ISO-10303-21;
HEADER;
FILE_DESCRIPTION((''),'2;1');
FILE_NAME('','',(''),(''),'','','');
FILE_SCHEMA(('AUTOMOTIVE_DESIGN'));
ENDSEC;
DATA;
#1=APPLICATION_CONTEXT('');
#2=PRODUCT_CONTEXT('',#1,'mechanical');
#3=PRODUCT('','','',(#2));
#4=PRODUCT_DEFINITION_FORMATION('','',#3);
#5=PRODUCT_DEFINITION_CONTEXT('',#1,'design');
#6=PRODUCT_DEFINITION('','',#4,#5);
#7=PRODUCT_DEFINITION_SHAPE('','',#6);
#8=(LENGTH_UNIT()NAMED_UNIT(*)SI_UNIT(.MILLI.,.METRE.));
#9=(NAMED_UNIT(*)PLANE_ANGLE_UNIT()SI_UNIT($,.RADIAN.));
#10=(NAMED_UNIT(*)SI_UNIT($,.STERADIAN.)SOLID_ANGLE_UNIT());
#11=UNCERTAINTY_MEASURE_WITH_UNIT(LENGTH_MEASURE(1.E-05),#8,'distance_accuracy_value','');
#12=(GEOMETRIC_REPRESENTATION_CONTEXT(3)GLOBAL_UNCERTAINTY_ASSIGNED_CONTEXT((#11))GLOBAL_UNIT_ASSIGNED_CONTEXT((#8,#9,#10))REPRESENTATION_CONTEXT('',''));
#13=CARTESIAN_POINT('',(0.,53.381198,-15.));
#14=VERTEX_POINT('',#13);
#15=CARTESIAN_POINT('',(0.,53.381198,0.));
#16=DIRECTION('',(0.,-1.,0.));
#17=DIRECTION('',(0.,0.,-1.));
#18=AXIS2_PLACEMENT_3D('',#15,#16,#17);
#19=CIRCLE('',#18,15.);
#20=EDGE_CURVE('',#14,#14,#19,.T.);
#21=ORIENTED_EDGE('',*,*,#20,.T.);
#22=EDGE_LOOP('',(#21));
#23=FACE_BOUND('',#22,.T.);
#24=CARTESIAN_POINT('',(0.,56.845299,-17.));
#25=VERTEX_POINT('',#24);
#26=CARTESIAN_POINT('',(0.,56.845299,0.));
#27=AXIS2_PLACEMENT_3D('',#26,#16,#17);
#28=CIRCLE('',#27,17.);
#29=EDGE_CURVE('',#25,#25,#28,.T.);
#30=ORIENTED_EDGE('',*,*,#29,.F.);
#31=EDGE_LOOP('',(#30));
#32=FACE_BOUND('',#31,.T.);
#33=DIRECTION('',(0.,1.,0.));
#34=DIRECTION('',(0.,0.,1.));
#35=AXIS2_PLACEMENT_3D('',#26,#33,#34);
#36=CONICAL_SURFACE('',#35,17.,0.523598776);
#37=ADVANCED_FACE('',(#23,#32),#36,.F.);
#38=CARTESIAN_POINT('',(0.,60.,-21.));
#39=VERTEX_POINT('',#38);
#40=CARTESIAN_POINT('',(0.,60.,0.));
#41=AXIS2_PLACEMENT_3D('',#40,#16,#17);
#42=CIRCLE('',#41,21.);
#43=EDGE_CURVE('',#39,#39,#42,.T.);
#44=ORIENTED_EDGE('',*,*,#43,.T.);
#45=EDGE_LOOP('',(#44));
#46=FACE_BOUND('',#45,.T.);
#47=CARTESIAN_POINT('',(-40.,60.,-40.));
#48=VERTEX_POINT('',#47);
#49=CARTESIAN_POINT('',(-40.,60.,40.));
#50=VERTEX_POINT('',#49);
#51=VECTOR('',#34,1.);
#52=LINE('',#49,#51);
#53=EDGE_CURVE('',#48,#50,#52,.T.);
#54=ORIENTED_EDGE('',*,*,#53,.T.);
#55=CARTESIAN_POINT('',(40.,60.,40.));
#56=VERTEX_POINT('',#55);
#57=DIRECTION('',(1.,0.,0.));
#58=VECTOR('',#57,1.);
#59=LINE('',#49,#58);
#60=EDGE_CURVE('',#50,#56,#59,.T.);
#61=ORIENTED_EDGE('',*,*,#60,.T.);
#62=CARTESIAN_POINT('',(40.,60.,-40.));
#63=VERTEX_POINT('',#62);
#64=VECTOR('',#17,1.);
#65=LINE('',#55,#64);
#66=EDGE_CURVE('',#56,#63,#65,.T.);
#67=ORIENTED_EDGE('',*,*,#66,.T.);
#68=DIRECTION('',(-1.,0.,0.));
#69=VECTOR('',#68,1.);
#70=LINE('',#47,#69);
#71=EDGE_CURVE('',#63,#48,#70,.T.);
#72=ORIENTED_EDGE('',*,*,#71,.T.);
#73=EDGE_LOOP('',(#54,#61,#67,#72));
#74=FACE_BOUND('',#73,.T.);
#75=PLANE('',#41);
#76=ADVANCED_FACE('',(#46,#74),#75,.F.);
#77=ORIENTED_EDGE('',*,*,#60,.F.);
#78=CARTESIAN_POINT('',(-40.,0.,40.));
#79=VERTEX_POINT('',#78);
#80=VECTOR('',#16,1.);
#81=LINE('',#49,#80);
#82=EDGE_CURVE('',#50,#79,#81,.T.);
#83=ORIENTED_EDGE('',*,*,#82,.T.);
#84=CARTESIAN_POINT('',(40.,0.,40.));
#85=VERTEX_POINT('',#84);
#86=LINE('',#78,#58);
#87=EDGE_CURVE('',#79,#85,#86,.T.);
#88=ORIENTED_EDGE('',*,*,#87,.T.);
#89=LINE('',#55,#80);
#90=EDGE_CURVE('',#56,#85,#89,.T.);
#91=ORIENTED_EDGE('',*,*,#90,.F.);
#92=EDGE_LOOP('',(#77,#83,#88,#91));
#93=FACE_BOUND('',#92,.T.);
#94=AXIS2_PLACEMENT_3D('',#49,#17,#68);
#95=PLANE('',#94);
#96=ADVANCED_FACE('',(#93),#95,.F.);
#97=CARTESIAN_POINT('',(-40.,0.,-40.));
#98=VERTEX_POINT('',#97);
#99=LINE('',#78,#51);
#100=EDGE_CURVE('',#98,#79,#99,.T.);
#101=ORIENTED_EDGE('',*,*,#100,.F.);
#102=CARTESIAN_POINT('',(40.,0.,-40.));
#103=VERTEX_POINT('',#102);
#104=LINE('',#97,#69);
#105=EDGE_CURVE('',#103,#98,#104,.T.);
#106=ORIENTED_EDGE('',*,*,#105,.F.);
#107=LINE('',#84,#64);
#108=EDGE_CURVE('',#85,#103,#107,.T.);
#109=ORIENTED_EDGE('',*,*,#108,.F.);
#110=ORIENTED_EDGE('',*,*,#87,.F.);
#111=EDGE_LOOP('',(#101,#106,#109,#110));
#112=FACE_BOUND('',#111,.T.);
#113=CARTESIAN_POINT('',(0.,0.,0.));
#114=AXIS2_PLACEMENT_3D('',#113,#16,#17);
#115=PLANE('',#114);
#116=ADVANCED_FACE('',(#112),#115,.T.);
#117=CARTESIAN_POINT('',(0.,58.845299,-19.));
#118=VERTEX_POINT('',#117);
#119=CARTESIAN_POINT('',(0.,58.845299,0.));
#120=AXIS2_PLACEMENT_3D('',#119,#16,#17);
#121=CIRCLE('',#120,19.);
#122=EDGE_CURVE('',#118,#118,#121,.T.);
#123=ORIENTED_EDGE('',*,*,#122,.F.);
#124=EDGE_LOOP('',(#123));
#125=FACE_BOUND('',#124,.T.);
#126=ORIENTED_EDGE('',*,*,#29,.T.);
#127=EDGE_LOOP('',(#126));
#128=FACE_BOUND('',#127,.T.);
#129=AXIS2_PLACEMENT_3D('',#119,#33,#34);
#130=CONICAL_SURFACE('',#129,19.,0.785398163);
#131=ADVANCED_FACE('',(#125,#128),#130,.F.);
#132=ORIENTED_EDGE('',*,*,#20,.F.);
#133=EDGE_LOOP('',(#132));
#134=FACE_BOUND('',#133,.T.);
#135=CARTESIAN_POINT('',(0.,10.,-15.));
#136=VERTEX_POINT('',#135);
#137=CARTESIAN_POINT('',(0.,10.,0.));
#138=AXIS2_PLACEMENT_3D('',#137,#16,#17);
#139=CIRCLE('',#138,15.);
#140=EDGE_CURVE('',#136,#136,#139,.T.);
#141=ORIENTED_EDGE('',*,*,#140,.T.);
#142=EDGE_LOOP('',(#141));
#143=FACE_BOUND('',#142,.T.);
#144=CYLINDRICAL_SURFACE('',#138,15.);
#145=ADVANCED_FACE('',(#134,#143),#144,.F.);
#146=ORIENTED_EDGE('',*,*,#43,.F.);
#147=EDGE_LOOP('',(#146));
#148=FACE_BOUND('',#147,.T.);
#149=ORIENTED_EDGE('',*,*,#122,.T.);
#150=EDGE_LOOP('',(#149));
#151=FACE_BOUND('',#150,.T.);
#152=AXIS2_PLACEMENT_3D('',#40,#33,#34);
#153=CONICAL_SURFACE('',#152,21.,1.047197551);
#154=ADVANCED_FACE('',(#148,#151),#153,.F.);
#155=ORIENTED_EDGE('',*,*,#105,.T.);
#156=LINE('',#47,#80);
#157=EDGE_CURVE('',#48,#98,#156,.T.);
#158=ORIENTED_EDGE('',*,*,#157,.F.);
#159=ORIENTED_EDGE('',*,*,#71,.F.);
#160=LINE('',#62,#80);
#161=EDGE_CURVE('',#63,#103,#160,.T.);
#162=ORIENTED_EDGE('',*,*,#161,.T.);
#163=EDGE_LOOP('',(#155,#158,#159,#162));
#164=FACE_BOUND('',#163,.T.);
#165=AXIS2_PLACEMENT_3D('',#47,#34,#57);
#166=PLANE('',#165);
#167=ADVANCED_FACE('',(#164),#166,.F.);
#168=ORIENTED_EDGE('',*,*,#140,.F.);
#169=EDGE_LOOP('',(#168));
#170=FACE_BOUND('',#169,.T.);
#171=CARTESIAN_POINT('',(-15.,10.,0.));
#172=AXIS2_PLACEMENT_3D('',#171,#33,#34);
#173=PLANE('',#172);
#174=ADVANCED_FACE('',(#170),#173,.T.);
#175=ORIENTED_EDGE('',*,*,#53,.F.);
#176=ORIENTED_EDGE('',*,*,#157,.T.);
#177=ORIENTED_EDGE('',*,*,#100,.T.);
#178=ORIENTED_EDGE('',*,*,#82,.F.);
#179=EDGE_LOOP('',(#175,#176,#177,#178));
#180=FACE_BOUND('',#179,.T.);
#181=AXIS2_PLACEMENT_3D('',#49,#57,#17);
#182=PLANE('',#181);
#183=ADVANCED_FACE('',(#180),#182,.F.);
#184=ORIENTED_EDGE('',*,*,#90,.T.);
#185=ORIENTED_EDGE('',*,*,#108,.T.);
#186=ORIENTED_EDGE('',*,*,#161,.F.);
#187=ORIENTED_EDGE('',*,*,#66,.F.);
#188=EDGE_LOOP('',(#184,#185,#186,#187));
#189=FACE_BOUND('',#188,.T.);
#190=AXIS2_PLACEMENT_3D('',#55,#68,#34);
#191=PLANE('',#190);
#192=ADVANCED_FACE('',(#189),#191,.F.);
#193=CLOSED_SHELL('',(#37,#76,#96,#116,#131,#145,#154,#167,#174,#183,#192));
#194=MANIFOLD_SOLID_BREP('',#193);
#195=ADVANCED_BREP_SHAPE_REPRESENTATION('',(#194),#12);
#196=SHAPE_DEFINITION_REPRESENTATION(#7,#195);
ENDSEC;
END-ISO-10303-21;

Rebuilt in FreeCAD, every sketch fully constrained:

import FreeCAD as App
import Part
import Sketcher
from FreeCAD import Vector
Q = App.Units.Quantity


def add_polygon(sketch, points):
    """Adds a closed chain of lines whose ends are joined by coincident constraints."""
    first, n = sketch.GeometryCount, len(points)
    for a, b in zip(points, points[1:] + points[:1]):
        sketch.addGeometry(Part.LineSegment(App.Vector(*a, 0), App.Vector(*b, 0)), False)
    for i in range(n):
        sketch.addConstraint(Sketcher.Constraint("Coincident", first + i, 2, first + (i + 1) % n, 1))

doc = App.newDocument("Part")
params = doc.addObject("Spreadsheet::Sheet", "Params")
for row, (alias, value) in enumerate([
    ("sketch1_width", "80 mm"),
    ("pad1_length", "60 mm"),
    ("sketch2_width", "21 mm"),
    ("sketch2_width2", "15 mm"),
    ("sketch2_height", "50 mm"),
    ("sketch2_length", "4 mm"),
    ("groove_angle", "360 deg"),
], start=1):
    params.set(f"A{row}", alias)
    params.set(f"B{row}", "=" + value)
    params.setAlias(f"B{row}", alias)

body = doc.addObject("PartDesign::Body", "Body")

# Sketch on XZ plane
sketch1 = body.newObject("Sketcher::SketchObject", "Sketch")
sketch1.AttachmentSupport = (doc.getObject("XZ_Plane"), [""])
sketch1.MapMode = "FlatFace"
add_polygon(sketch1, [(-40, -40), (-40, 40), (40, 40), (40, -40)])  # lines 0-3
sketch1.addConstraint([
    Sketcher.Constraint("Vertical", 0),
    Sketcher.Constraint("Horizontal", 1),
    Sketcher.Constraint("Vertical", 2),
    Sketcher.Constraint("Horizontal", 3),
    Sketcher.Constraint("Symmetric", 0, 2, 2, 2, -1, 1),
    Sketcher.Constraint("Equal", 3, 0),
    Sketcher.Constraint("DistanceX", 1, 1, 1, 2, 80.0),
])
sketch1.setExpression("Constraints[10]", "Params.sketch1_width")
pad1 = body.newObject("PartDesign::Pad", "Pad")
pad1.Profile = sketch1
pad1.setExpression("Length", "Params.pad1_length")
pad1.Reversed = True

# Sketch on XY plane
sketch2 = body.newObject("Sketcher::SketchObject", "Sketch001")
sketch2.AttachmentSupport = (doc.getObject("XY_Plane"), [""])
sketch2.MapMode = "FlatFace"
add_polygon(sketch2, [(0, 60), (-21, 60), (-19, 58.8), (-17, 56.8), (-15, 53.4), (-15, 10), (0, 10)])  # lines 0-6
sketch2.addConstraint([
    Sketcher.Constraint("Horizontal", 0),
    Sketcher.Constraint("Vertical", 4),
    Sketcher.Constraint("Horizontal", 5),
    Sketcher.Constraint("Vertical", 6),
    Sketcher.Constraint("PointOnObject", 5, 2, -2),
    Sketcher.Constraint("DistanceX", 0, 2, 0, 1, 21.0),
    Sketcher.Constraint("DistanceX", 5, 1, 5, 2, 15.0),
    Sketcher.Constraint("DistanceY", 6, 1, 6, 2, 50.0),
    Sketcher.Constraint("Angle", 1, Q("-30 deg")),
    Sketcher.Constraint("Angle", 2, Q("-45 deg")),
    Sketcher.Constraint("Angle", 3, Q("-60 deg")),
    Sketcher.Constraint("Distance", 3, 4.0),
    Sketcher.Constraint("DistanceY", -1, 1, 0, 2, 60.0),
    Sketcher.Constraint("DistanceX", 1, 2, -1, 1, 19.0),
])
sketch2.setExpression("Constraints[12]", "Params.sketch2_width")
sketch2.setExpression("Constraints[13]", "Params.sketch2_width2")
sketch2.setExpression("Constraints[14]", "Params.sketch2_height")
sketch2.setExpression("Constraints[18]", "Params.sketch2_length")
groove = body.newObject("PartDesign::Groove", "Groove")
groove.Profile = sketch2
groove.ReferenceAxis = (sketch2, ["V_Axis"])
groove.setExpression("Angle", "Params.groove_angle")

doc.recompute()
